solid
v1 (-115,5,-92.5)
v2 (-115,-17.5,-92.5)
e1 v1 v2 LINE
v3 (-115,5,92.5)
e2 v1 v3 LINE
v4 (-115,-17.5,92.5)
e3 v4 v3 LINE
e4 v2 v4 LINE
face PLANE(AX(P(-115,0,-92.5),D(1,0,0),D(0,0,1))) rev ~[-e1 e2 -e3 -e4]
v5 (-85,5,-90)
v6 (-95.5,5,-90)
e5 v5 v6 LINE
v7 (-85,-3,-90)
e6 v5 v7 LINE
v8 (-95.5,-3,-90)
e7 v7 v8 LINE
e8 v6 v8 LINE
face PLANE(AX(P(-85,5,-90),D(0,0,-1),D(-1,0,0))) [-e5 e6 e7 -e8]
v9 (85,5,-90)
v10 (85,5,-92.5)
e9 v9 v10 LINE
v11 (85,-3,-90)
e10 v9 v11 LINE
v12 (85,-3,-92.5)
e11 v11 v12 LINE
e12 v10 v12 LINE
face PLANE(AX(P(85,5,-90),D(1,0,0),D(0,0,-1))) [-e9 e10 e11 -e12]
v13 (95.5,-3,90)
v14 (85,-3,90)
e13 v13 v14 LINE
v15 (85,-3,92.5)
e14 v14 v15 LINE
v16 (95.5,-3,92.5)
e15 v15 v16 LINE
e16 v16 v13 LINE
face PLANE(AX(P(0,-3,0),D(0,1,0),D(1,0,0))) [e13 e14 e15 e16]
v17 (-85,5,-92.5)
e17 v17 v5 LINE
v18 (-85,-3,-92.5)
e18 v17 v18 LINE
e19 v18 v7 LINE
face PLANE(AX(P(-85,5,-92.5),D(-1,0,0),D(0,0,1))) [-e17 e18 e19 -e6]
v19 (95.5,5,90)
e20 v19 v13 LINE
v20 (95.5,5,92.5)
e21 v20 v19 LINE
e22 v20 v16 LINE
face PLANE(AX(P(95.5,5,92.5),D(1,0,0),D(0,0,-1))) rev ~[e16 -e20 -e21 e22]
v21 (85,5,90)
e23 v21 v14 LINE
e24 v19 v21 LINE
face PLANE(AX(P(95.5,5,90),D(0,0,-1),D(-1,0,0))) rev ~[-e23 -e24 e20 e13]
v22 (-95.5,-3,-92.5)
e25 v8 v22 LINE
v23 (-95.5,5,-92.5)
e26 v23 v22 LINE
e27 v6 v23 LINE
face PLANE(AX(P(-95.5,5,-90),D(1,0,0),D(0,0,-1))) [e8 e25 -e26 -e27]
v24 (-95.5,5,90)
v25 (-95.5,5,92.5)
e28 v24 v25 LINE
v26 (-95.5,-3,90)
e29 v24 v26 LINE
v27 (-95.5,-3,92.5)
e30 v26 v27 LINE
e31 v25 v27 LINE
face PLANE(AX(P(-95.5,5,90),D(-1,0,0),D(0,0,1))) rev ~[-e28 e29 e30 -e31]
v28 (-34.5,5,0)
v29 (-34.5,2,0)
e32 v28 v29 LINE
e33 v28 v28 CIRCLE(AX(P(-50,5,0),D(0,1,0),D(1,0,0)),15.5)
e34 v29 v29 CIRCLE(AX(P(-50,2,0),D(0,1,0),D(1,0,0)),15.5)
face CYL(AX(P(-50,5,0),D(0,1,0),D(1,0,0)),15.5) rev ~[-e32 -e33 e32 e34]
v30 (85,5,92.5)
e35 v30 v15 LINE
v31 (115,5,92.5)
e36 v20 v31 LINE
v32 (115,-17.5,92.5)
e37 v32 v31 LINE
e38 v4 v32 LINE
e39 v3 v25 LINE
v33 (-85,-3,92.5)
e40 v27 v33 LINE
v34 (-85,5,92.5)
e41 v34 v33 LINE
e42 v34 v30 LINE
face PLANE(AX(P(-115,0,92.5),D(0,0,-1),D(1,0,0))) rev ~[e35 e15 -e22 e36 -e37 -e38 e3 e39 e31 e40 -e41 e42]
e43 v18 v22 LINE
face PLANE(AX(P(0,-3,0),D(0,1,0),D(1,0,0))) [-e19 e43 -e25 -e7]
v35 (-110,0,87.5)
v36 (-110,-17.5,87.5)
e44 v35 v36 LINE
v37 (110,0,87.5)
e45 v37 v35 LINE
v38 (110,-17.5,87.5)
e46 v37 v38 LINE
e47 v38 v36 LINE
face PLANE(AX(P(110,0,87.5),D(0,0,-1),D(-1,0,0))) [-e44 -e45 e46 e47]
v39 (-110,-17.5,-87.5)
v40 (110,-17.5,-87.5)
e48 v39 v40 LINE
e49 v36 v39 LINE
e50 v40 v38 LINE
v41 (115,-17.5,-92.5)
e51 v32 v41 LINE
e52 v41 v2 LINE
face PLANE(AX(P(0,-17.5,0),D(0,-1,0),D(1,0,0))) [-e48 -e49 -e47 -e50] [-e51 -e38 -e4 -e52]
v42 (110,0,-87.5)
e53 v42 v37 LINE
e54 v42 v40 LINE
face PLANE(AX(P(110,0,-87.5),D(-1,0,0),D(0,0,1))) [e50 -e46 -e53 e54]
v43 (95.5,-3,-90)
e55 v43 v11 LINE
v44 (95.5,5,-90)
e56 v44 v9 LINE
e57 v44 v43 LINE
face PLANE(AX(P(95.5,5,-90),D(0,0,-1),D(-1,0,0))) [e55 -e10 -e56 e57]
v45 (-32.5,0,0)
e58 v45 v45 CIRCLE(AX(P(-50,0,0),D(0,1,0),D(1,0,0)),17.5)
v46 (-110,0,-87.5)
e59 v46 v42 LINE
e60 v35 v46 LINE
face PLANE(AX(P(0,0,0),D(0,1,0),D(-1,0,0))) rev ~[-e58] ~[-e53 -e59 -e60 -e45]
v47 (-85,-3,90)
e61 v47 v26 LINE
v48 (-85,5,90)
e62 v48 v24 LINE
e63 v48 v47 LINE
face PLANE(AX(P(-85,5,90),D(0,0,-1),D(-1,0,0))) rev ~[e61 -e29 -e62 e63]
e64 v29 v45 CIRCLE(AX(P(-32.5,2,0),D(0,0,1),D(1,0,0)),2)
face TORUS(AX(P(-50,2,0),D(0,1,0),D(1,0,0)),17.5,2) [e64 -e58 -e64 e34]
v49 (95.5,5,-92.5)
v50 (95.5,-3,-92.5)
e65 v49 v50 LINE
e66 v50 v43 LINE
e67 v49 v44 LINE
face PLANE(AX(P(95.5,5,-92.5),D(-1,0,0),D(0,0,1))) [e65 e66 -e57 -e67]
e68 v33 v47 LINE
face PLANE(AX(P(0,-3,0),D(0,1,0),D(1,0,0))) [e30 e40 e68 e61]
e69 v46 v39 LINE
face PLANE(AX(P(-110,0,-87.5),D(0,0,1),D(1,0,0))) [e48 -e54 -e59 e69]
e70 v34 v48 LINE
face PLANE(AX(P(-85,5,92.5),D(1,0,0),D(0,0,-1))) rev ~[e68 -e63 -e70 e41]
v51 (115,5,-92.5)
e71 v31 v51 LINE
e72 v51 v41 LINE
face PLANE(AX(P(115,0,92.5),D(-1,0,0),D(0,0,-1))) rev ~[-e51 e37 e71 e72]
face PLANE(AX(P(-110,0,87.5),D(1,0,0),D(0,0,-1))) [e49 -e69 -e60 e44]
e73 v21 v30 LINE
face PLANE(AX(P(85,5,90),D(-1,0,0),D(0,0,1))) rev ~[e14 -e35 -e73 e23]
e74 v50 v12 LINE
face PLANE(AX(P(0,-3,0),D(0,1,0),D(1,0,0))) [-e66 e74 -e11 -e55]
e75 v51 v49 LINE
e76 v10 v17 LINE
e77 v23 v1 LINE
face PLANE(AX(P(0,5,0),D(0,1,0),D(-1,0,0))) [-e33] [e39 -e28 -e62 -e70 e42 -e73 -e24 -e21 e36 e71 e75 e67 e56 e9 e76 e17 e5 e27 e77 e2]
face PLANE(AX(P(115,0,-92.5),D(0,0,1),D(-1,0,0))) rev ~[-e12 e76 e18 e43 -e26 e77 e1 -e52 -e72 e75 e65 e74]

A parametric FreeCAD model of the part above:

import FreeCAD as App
import Part
import Sketcher

V = App.Vector
Q = App.Units.Quantity


def edges_at(feature, points):
    """Names of the edges that pass closest to the given points."""
    edges = feature.Shape.Edges
    near = lambda p: min(range(len(edges)), key=lambda i: edges[i].distToShape(Part.Vertex(*p))[0])
    return sorted({f"Edge{near(p) + 1}" for p in points})

doc = App.newDocument("Part")
body = doc.addObject("PartDesign::Body", "Body")

# Sketch on XZ plane
sketch1 = doc.addObject("Sketcher::SketchObject", "Sketch")
body.addObject(sketch1)
sketch1.AttachmentSupport = (doc.XZ_Plane, [""])
sketch1.MapMode = "FlatFace"
sketch1.addGeometry(Part.LineSegment(V(-115, -92, 0), V(-115, 92, 0)), False)
sketch1.addGeometry(Part.LineSegment(V(-115, 92, 0), V(115, 92, 0)), False)
sketch1.addGeometry(Part.LineSegment(V(115, 92, 0), V(115, -92, 0)), False)
sketch1.addGeometry(Part.LineSegment(V(115, -92, 0), V(-115, -92, 0)), False)
sketch1.addConstraint(Sketcher.Constraint("Coincident", 0, 2, 1, 1))
sketch1.addConstraint(Sketcher.Constraint("Coincident", 1, 2, 2, 1))
sketch1.addConstraint(Sketcher.Constraint("Coincident", 2, 2, 3, 1))
sketch1.addConstraint(Sketcher.Constraint("Coincident", 3, 2, 0, 1))
sketch1.addConstraint(Sketcher.Constraint("Vertical", 0))
sketch1.addConstraint(Sketcher.Constraint("Horizontal", 1))
sketch1.addConstraint(Sketcher.Constraint("Vertical", 2))
sketch1.addConstraint(Sketcher.Constraint("Horizontal", 3))
sketch1.addConstraint(Sketcher.Constraint("Symmetric", 0, 2, 2, 2, -1, 1))
sketch1.addConstraint(Sketcher.Constraint("DistanceX", 1, 1, 1, 2, Q("230 mm")))
sketch1.addConstraint(Sketcher.Constraint("DistanceY", 0, 1, 0, 2, Q("185 mm")))
pad1 = doc.addObject("PartDesign::Pad", "Pad")
body.addObject(pad1)
pad1.Profile = sketch1
pad1.Length = 5
pad1.Reversed = True

# Sketch on XZ plane
sketch2 = doc.addObject("Sketcher::SketchObject", "Sketch001")
body.addObject(sketch2)
sketch2.AttachmentSupport = (doc.XZ_Plane, [""])
sketch2.MapMode = "FlatFace"
sketch2.addGeometry(Part.LineSegment(V(115, 92, 0), V(-115, 92, 0)), False)
sketch2.addGeometry(Part.LineSegment(V(-115, 92, 0), V(-115, -92, 0)), False)
sketch2.addGeometry(Part.LineSegment(V(-115, -92, 0), V(115, -92, 0)), False)
sketch2.addGeometry(Part.LineSegment(V(115, -92, 0), V(115, 92, 0)), False)
sketch2.addGeometry(Part.LineSegment(V(-110, 88, 0), V(110, 88, 0)), False)
sketch2.addGeometry(Part.LineSegment(V(110, 88, 0), V(110, -88, 0)), False)
sketch2.addGeometry(Part.LineSegment(V(110, -88, 0), V(-110, -88, 0)), False)
sketch2.addGeometry(Part.LineSegment(V(-110, -88, 0), V(-110, 88, 0)), False)
sketch2.addConstraint(Sketcher.Constraint("Coincident", 0, 2, 1, 1))
sketch2.addConstraint(Sketcher.Constraint("Coincident", 1, 2, 2, 1))
sketch2.addConstraint(Sketcher.Constraint("Coincident", 2, 2, 3, 1))
sketch2.addConstraint(Sketcher.Constraint("Coincident", 3, 2, 0, 1))
sketch2.addConstraint(Sketcher.Constraint("Coincident", 4, 2, 5, 1))
sketch2.addConstraint(Sketcher.Constraint("Coincident", 5, 2, 6, 1))
sketch2.addConstraint(Sketcher.Constraint("Coincident", 6, 2, 7, 1))
sketch2.addConstraint(Sketcher.Constraint("Coincident", 7, 2, 4, 1))
sketch2.addConstraint(Sketcher.Constraint("Horizontal", 0))
sketch2.addConstraint(Sketcher.Constraint("Vertical", 1))
sketch2.addConstraint(Sketcher.Constraint("Horizontal", 2))
sketch2.addConstraint(Sketcher.Constraint("Vertical", 3))
sketch2.addConstraint(Sketcher.Constraint("Horizontal", 4))
sketch2.addConstraint(Sketcher.Constraint("Vertical", 5))
sketch2.addConstraint(Sketcher.Constraint("Horizontal", 6))
sketch2.addConstraint(Sketcher.Constraint("Vertical", 7))
sketch2.addConstraint(Sketcher.Constraint("Symmetric", 0, 2, 2, 2, -1, 1))
sketch2.addConstraint(Sketcher.Constraint("Symmetric", 4, 2, 6, 2, -1, 1))
sketch2.addConstraint(Sketcher.Constraint("DistanceX", 4, 2, 3, 2, Q("5 mm")))
sketch2.addConstraint(Sketcher.Constraint("DistanceY", 4, 2, 3, 2, Q("5 mm")))
sketch2.addConstraint(Sketcher.Constraint("DistanceX", 0, 2, 0, 1, Q("230 mm")))
sketch2.addConstraint(Sketcher.Constraint("DistanceY", 1, 2, 1, 1, Q("185 mm")))
pad2 = doc.addObject("PartDesign::Pad", "Pad001")
body.addObject(pad2)
pad2.Profile = sketch2
pad2.Length = 17.5

# Sketch on XZ plane
sketch3 = doc.addObject("Sketcher::SketchObject", "Sketch002")
body.addObject(sketch3)
sketch3.AttachmentSupport = (doc.XZ_Plane, [""])
sketch3.MapMode = "FlatFace"
sketch3.AttachmentOffset = App.Placement(V(0, 0, -5), App.Rotation())
sketch3.addGeometry(Part.Circle(V(-50, 0, 0), V(0, 0, 1), 16), False)
sketch3.addConstraint(Sketcher.Constraint("PointOnObject", 0, 3, -1))
sketch3.addConstraint(Sketcher.Constraint("Diameter", 0, Q("31 mm")))
sketch3.addConstraint(Sketcher.Constraint("DistanceX", 0, 3, -1, 1, Q("50 mm")))
pocket1 = doc.addObject("PartDesign::Pocket", "Pocket")
body.addObject(pocket1)
pocket1.Profile = sketch3
pocket1.Type = "ThroughAll"
pocket1.Reversed = True

# Sketch on XZ plane
sketch4 = doc.addObject("Sketcher::SketchObject", "Sketch003")
body.addObject(sketch4)
sketch4.AttachmentSupport = (doc.XZ_Plane, [""])
sketch4.MapMode = "FlatFace"
sketch4.AttachmentOffset = App.Placement(V(0, 0, -5), App.Rotation())
sketch4.addGeometry(Part.LineSegment(V(-85, -92.5, 0), V(-95.5, -92.5, 0)), False)
sketch4.addGeometry(Part.LineSegment(V(-95.5, -92.5, 0), V(-95.5, -90, 0)), False)
sketch4.addGeometry(Part.LineSegment(V(-95.5, -90, 0), V(-85, -90, 0)), False)
sketch4.addGeometry(Part.LineSegment(V(-85, -90, 0), V(-85, -92.5, 0)), False)
sketch4.addGeometry(Part.LineSegment(V(95.5, -92.5, 0), V(85, -92.5, 0)), False)
sketch4.addGeometry(Part.LineSegment(V(85, -92.5, 0), V(85, -90, 0)), False)
sketch4.addGeometry(Part.LineSegment(V(85, -90, 0), V(95.5, -90, 0)), False)
sketch4.addGeometry(Part.LineSegment(V(95.5, -90, 0), V(95.5, -92.5, 0)), False)
sketch4.addGeometry(Part.LineSegment(V(85, 92.5, 0), V(95.5, 92.5, 0)), False)
sketch4.addGeometry(Part.LineSegment(V(95.5, 92.5, 0), V(95.5, 90, 0)), False)
sketch4.addGeometry(Part.LineSegment(V(95.5, 90, 0), V(85, 90, 0)), False)
sketch4.addGeometry(Part.LineSegment(V(85, 90, 0), V(85, 92.5, 0)), False)
sketch4.addGeometry(Part.LineSegment(V(-95.5, 90, 0), V(-95.5, 92.5, 0)), False)
sketch4.addGeometry(Part.LineSegment(V(-95.5, 92.5, 0), V(-85, 92.5, 0)), False)
sketch4.addGeometry(Part.LineSegment(V(-85, 92.5, 0), V(-85, 90, 0)), False)
sketch4.addGeometry(Part.LineSegment(V(-85, 90, 0), V(-95.5, 90, 0)), False)
sketch4.addConstraint(Sketcher.Constraint("Coincident", 0, 2, 1, 1))
sketch4.addConstraint(Sketcher.Constraint("Coincident", 1, 2, 2, 1))
sketch4.addConstraint(Sketcher.Constraint("Coincident", 2, 2, 3, 1))
sketch4.addConstraint(Sketcher.Constraint("Coincident", 3, 2, 0, 1))
sketch4.addConstraint(Sketcher.Constraint("Coincident", 4, 2, 5, 1))
sketch4.addConstraint(Sketcher.Constraint("Coincident", 5, 2, 6, 1))
sketch4.addConstraint(Sketcher.Constraint("Coincident", 6, 2, 7, 1))
sketch4.addConstraint(Sketcher.Constraint("Coincident", 7, 2, 4, 1))
sketch4.addConstraint(Sketcher.Constraint("Coincident", 8, 2, 9, 1))
sketch4.addConstraint(Sketcher.Constraint("Coincident", 9, 2, 10, 1))
sketch4.addConstraint(Sketcher.Constraint("Coincident", 10, 2, 11, 1))
sketch4.addConstraint(Sketcher.Constraint("Coincident", 11, 2, 8, 1))
sketch4.addConstraint(Sketcher.Constraint("Coincident", 12, 2, 13, 1))
sketch4.addConstraint(Sketcher.Constraint("Coincident", 13, 2, 14, 1))
sketch4.addConstraint(Sketcher.Constraint("Coincident", 14, 2, 15, 1))
sketch4.addConstraint(Sketcher.Constraint("Coincident", 15, 2, 12, 1))
sketch4.addConstraint(Sketcher.Constraint("Horizontal", 0))
sketch4.addConstraint(Sketcher.Constraint("Vertical", 1))
sketch4.addConstraint(Sketcher.Constraint("Horizontal", 2))
sketch4.addConstraint(Sketcher.Constraint("Vertical", 3))
sketch4.addConstraint(Sketcher.Constraint("Horizontal", 4))
sketch4.addConstraint(Sketcher.Constraint("Vertical", 5))
sketch4.addConstraint(Sketcher.Constraint("Horizontal", 6))
sketch4.addConstraint(Sketcher.Constraint("Vertical", 7))
sketch4.addConstraint(Sketcher.Constraint("Horizontal", 8))
sketch4.addConstraint(Sketcher.Constraint("Vertical", 9))
sketch4.addConstraint(Sketcher.Constraint("Horizontal", 10))
sketch4.addConstraint(Sketcher.Constraint("Vertical", 11))
sketch4.addConstraint(Sketcher.Constraint("Vertical", 12))
sketch4.addConstraint(Sketcher.Constraint("Horizontal", 13))
sketch4.addConstraint(Sketcher.Constraint("Vertical", 14))
sketch4.addConstraint(Sketcher.Constraint("Horizontal", 15))
sketch4.addConstraint(Sketcher.Constraint("Symmetric", 0, 2, 8, 2, -1, 1))
sketch4.addConstraint(Sketcher.Constraint("Symmetric", 2, 2, 10, 2, -1, 1))
sketch4.addConstraint(Sketcher.Constraint("Symmetric", 7, 2, 12, 2, -1, 1))
sketch4.addConstraint(Sketcher.Constraint("Symmetric", 5, 2, 14, 2, -1, 1))
sketch4.addConstraint(Sketcher.Constraint("Symmetric", 3, 2, 4, 2, -2))
sketch4.addConstraint(Sketcher.Constraint("Symmetric", 1, 2, 6, 2, -2))
sketch4.addConstraint(Sketcher.Constraint("DistanceX", 0, 2, 0, 1, Q("10.5 mm")))
sketch4.addConstraint(Sketcher.Constraint("DistanceY", 1, 1, 1, 2, Q("2.5 mm")))
sketch4.addConstraint(Sketcher.Constraint("DistanceX", 2, 2, -1, 1, Q("85 mm")))
sketch4.addConstraint(Sketcher.Constraint("DistanceY", 1, 2, -1, 1, Q("90 mm")))
pocket2 = doc.addObject("PartDesign::Pocket", "Pocket001")
body.addObject(pocket2)
pocket2.Profile = sketch4
pocket2.Length = 8
pocket2.Reversed = True
doc.recompute()

fillet = doc.addObject("PartDesign::Fillet", "Fillet")
body.addObject(fillet)
fillet.Base = (pocket2, edges_at(pocket2, [(-65.5, 0, 0)]))
fillet.Radius = 2

doc.recompute()
